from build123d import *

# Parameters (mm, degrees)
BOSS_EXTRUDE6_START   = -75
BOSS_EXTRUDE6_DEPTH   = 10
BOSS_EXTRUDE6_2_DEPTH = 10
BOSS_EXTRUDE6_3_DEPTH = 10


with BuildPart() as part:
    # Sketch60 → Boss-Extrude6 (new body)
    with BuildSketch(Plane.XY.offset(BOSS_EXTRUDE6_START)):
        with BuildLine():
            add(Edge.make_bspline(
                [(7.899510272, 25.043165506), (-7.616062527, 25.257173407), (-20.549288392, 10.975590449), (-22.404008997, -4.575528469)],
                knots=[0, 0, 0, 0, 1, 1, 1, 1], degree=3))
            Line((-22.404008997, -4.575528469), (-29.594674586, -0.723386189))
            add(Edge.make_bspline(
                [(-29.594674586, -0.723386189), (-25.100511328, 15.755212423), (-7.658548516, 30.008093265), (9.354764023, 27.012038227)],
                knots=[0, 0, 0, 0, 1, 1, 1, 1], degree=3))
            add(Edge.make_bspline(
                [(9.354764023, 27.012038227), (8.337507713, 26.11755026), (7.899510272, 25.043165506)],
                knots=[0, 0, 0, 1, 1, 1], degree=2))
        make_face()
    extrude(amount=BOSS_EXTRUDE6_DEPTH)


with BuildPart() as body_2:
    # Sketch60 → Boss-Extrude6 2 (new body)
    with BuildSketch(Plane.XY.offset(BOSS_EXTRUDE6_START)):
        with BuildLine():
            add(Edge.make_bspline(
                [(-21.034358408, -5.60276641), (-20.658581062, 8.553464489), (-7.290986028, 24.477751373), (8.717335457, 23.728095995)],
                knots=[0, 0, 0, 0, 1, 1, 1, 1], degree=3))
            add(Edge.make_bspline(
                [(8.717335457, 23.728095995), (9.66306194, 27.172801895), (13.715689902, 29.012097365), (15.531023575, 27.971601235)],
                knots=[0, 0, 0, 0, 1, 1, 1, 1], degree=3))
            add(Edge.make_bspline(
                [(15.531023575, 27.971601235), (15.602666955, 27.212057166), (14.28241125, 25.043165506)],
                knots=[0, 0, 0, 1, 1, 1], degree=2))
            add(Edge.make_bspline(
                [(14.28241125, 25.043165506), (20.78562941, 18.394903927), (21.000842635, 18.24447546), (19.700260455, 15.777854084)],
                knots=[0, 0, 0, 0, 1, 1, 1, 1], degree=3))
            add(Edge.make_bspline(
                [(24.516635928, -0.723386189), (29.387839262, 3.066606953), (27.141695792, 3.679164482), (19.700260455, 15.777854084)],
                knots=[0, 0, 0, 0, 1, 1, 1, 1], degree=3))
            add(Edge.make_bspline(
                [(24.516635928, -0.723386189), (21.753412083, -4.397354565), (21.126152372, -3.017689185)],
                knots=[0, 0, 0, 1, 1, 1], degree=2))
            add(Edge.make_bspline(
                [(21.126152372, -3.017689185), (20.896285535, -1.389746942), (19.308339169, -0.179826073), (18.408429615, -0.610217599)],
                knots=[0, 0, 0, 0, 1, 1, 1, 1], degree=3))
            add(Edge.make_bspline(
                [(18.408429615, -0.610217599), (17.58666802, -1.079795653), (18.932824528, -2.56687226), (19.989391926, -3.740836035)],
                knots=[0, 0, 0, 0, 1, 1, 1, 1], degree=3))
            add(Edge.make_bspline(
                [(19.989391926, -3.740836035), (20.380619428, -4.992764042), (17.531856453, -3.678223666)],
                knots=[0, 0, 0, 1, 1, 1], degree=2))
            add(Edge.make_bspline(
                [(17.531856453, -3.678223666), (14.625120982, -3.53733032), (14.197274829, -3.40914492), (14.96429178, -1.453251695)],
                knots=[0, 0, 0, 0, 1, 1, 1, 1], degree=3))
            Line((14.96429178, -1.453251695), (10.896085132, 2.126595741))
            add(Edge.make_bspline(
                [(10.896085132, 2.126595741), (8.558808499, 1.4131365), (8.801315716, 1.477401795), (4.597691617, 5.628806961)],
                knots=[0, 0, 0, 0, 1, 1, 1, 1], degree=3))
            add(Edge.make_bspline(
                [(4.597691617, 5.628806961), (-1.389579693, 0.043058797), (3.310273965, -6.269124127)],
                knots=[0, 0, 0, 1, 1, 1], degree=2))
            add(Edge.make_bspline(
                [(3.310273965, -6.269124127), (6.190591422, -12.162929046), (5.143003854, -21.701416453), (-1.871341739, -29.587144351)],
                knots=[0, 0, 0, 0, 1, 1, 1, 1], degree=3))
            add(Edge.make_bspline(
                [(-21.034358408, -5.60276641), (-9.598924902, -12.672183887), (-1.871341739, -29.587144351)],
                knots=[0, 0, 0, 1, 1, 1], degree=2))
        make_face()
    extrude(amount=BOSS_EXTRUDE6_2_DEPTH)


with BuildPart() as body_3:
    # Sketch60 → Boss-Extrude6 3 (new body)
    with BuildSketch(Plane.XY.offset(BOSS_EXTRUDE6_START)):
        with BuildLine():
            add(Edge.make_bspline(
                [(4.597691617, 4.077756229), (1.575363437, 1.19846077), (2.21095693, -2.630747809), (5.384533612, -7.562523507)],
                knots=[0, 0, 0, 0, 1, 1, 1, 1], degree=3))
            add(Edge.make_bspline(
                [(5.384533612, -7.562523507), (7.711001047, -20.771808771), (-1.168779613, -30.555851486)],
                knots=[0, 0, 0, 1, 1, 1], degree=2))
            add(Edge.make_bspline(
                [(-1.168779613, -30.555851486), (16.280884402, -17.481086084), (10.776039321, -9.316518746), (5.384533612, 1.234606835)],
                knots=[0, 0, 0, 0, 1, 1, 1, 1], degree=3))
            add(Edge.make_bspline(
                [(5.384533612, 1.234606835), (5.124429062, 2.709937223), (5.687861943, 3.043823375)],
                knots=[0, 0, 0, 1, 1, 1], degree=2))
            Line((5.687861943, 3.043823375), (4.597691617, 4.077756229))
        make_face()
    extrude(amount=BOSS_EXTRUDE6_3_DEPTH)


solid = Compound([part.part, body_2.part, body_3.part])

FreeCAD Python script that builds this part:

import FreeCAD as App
import Part
import Sketcher
from FreeCAD import Vector

doc = App.newDocument("Part")
params = doc.addObject("Spreadsheet::Sheet", "Params")
for row, (alias, value) in enumerate([
    ("pad1_length", "10 mm"),
    ("pad2_length", "10 mm"),
    ("pad3_length", "10 mm"),
], start=1):
    params.set(f"A{row}", alias)
    params.set(f"B{row}", "=" + value)
    params.setAlias(f"B{row}", alias)

body = doc.addObject("PartDesign::Body", "Body")

# Sketch on XY plane
sketch1 = body.newObject("Sketcher::SketchObject", "Sketch")
sketch1.AttachmentSupport = (doc.getObject("XY_Plane"), [""])
sketch1.MapMode = "FlatFace"
sketch1.AttachmentOffset = App.Placement(Vector(0, 0, -75), App.Rotation())
sketch1.addGeometry(Part.BSplineCurve([Vector(7.89951, 25.043166, 0), Vector(-7.616063, 25.257173, 0), Vector(-20.549288, 10.97559, 0), Vector(-22.404009, -4.575528, 0)], [4, 4], [0, 1], False, 3, [1, 1, 1, 1], False), False)
sketch1.addGeometry(Part.BSplineCurve([Vector(9.354764, 27.012038, 0), Vector(8.337508, 26.11755, 0), Vector(7.89951, 25.043166, 0)], [3, 3], [0, 1], False, 2, [1, 1, 1], False), False)
sketch1.addGeometry(Part.BSplineCurve([Vector(-29.594675, -0.723386, 0), Vector(-25.100511, 15.755212, 0), Vector(-7.658549, 30.008093, 0), Vector(9.354764, 27.012038, 0)], [4, 4], [0, 1], False, 3, [1, 1, 1, 1], False), False)
sketch1.addGeometry(Part.LineSegment(Vector(-29.594675, -0.723386, 0), Vector(-22.404009, -4.575528, 0)), False)
sketch1.addConstraint(Sketcher.Constraint("Block", 0))
sketch1.addConstraint(Sketcher.Constraint("Block", 1))
sketch1.addConstraint(Sketcher.Constraint("Block", 2))
sketch1.addConstraint(Sketcher.Constraint("Coincident", 2, 1, 3, 1))
sketch1.addConstraint(Sketcher.Constraint("Coincident", 3, 2, 0, 2))
pad1 = body.newObject("PartDesign::Pad", "Pad")
pad1.Profile = sketch1
pad1.setExpression("Length", "Params.pad1_length")
body2 = doc.addObject("PartDesign::Body", "Body001")

# Sketch on XY plane
sketch2 = body2.newObject("Sketcher::SketchObject", "Sketch001")
sketch2.AttachmentSupport = (doc.getObject("XY_Plane001"), [""])
sketch2.MapMode = "FlatFace"
sketch2.AttachmentOffset = App.Placement(Vector(0, 0, -75), App.Rotation())
sketch2.addGeometry(Part.BSplineCurve([Vector(-21.034358, -5.602766, 0), Vector(-20.658581, 8.553464, 0), Vector(-7.290986, 24.477751, 0), Vector(8.717335, 23.728096, 0)], [4, 4], [0, 1], False, 3, [1, 1, 1, 1], False), False)
sketch2.addGeometry(Part.BSplineCurve([Vector(-21.034358, -5.602766, 0), Vector(-9.598925, -12.672184, 0), Vector(-1.871342, -29.587144, 0)], [3, 3], [0, 1], False, 2, [1, 1, 1], False), False)
sketch2.addGeometry(Part.BSplineCurve([Vector(3.310274, -6.269124, 0), Vector(6.190591, -12.162929, 0), Vector(5.143004, -21.701416, 0), Vector(-1.871342, -29.587144, 0)], [4, 4], [0, 1], False, 3, [1, 1, 1, 1], False), False)
sketch2.addGeometry(Part.BSplineCurve([Vector(4.597692, 5.628807, 0), Vector(-1.38958, 0.043059, 0), Vector(3.310274, -6.269124, 0)], [3, 3], [0, 1], False, 2, [1, 1, 1], False), False)
sketch2.addGeometry(Part.BSplineCurve([Vector(10.896085, 2.126596, 0), Vector(8.558808, 1.413137, 0), Vector(8.801316, 1.477402, 0), Vector(4.597692, 5.628807, 0)], [4, 4], [0, 1], False, 3, [1, 1, 1, 1], False), False)
sketch2.addGeometry(Part.LineSegment(Vector(10.896085, 2.126596, 0), Vector(14.964292, -1.453252, 0)), False)
sketch2.addGeometry(Part.BSplineCurve([Vector(17.531856, -3.678224, 0), Vector(14.625121, -3.53733, 0), Vector(14.197275, -3.409145, 0), Vector(14.964292, -1.453252, 0)], [4, 4], [0, 1], False, 3, [1, 1, 1, 1], False), False)
sketch2.addGeometry(Part.BSplineCurve([Vector(19.989392, -3.740836, 0), Vector(20.380619, -4.992764, 0), Vector(17.531856, -3.678224, 0)], [3, 3], [0, 1], False, 2, [1, 1, 1], False), False)
sketch2.addGeometry(Part.BSplineCurve([Vector(18.40843, -0.610218, 0), Vector(17.586668, -1.079796, 0), Vector(18.932825, -2.566872, 0), Vector(19.989392, -3.740836, 0)], [4, 4], [0, 1], False, 3, [1, 1, 1, 1], False), False)
sketch2.addGeometry(Part.BSplineCurve([Vector(21.126152, -3.017689, 0), Vector(20.896286, -1.389747, 0), Vector(19.308339, -0.179826, 0), Vector(18.40843, -0.610218, 0)], [4, 4], [0, 1], False, 3, [1, 1, 1, 1], False), False)
sketch2.addGeometry(Part.BSplineCurve([Vector(24.516636, -0.723386, 0), Vector(21.753412, -4.397355, 0), Vector(21.126152, -3.017689, 0)], [3, 3], [0, 1], False, 2, [1, 1, 1], False), False)
sketch2.addGeometry(Part.BSplineCurve([Vector(24.516636, -0.723386, 0), Vector(29.387839, 3.066607, 0), Vector(27.141696, 3.679164, 0), Vector(19.70026, 15.777854, 0)], [4, 4], [0, 1], False, 3, [1, 1, 1, 1], False), False)
sketch2.addGeometry(Part.BSplineCurve([Vector(14.282411, 25.043166, 0), Vector(20.785629, 18.394904, 0), Vector(21.000843, 18.244475, 0), Vector(19.70026, 15.777854, 0)], [4, 4], [0, 1], False, 3, [1, 1, 1, 1], False), False)
sketch2.addGeometry(Part.BSplineCurve([Vector(15.531024, 27.971601, 0), Vector(15.602667, 27.212057, 0), Vector(14.282411, 25.043166, 0)], [3, 3], [0, 1], False, 2, [1, 1, 1], False), False)
sketch2.addGeometry(Part.BSplineCurve([Vector(8.717335, 23.728096, 0), Vector(9.663062, 27.172802, 0), Vector(13.71569, 29.012097, 0), Vector(15.531024, 27.971601, 0)], [4, 4], [0, 1], False, 3, [1, 1, 1, 1], False), False)
sketch2.addConstraint(Sketcher.Constraint("Block", 0))
sketch2.addConstraint(Sketcher.Constraint("Block", 1))
sketch2.addConstraint(Sketcher.Constraint("Block", 2))
sketch2.addConstraint(Sketcher.Constraint("Block", 3))
sketch2.addConstraint(Sketcher.Constraint("Block", 4))
sketch2.addConstraint(Sketcher.Constraint("Block", 6))
sketch2.addConstraint(Sketcher.Constraint("Block", 7))
sketch2.addConstraint(Sketcher.Constraint("Block", 8))
sketch2.addConstraint(Sketcher.Constraint("Block", 9))
sketch2.addConstraint(Sketcher.Constraint("Block", 10))
sketch2.addConstraint(Sketcher.Constraint("Block", 11))
sketch2.addConstraint(Sketcher.Constraint("Block", 12))
sketch2.addConstraint(Sketcher.Constraint("Block", 13))
sketch2.addConstraint(Sketcher.Constraint("Block", 14))
sketch2.addConstraint(Sketcher.Constraint("Coincident", 4, 1, 5, 1))
sketch2.addConstraint(Sketcher.Constraint("Coincident", 5, 2, 6, 2))
pad2 = body2.newObject("PartDesign::Pad", "Pad001")
pad2.Profile = sketch2
pad2.setExpression("Length", "Params.pad2_length")
body3 = doc.addObject("PartDesign::Body", "Body002")

# Sketch on XY plane
sketch3 = body3.newObject("Sketcher::SketchObject", "Sketch002")
sketch3.AttachmentSupport = (doc.getObject("XY_Plane002"), [""])
sketch3.MapMode = "FlatFace"
sketch3.AttachmentOffset = App.Placement(Vector(0, 0, -75), App.Rotation())
sketch3.addGeometry(Part.BSplineCurve([Vector(4.597692, 4.077756, 0), Vector(1.575363, 1.198461, 0), Vector(2.210957, -2.630748, 0), Vector(5.384534, -7.562524, 0)], [4, 4], [0, 1], False, 3, [1, 1, 1, 1], False), False)
sketch3.addGeometry(Part.BSplineCurve([Vector(5.384534, -7.562524, 0), Vector(7.711001, -20.771809, 0), Vector(-1.16878, -30.555851, 0)], [3, 3], [0, 1], False, 2, [1, 1, 1], False), False)
sketch3.addGeometry(Part.BSplineCurve([Vector(-1.16878, -30.555851, 0), Vector(16.280884, -17.481086, 0), Vector(10.776039, -9.316519, 0), Vector(5.384534, 1.234607, 0)], [4, 4], [0, 1], False, 3, [1, 1, 1, 1], False), False)
sketch3.addGeometry(Part.BSplineCurve([Vector(5.384534, 1.234607, 0), Vector(5.124429, 2.709937, 0), Vector(5.687862, 3.043823, 0)], [3, 3], [0, 1], False, 2, [1, 1, 1], False), False)
sketch3.addGeometry(Part.LineSegment(Vector(5.687862, 3.043823, 0), Vector(4.597692, 4.077756, 0)), False)
sketch3.addConstraint(Sketcher.Constraint("Block", 0))
sketch3.addConstraint(Sketcher.Constraint("Block", 1))
sketch3.addConstraint(Sketcher.Constraint("Block", 2))
sketch3.addConstraint(Sketcher.Constraint("Block", 3))
sketch3.addConstraint(Sketcher.Constraint("Coincident", 3, 2, 4, 1))
sketch3.addConstraint(Sketcher.Constraint("Coincident", 4, 2, 0, 1))
pad3 = body3.newObject("PartDesign::Pad", "Pad002")
pad3.Profile = sketch3
pad3.setExpression("Length", "Params.pad3_length")

doc.recompute()
